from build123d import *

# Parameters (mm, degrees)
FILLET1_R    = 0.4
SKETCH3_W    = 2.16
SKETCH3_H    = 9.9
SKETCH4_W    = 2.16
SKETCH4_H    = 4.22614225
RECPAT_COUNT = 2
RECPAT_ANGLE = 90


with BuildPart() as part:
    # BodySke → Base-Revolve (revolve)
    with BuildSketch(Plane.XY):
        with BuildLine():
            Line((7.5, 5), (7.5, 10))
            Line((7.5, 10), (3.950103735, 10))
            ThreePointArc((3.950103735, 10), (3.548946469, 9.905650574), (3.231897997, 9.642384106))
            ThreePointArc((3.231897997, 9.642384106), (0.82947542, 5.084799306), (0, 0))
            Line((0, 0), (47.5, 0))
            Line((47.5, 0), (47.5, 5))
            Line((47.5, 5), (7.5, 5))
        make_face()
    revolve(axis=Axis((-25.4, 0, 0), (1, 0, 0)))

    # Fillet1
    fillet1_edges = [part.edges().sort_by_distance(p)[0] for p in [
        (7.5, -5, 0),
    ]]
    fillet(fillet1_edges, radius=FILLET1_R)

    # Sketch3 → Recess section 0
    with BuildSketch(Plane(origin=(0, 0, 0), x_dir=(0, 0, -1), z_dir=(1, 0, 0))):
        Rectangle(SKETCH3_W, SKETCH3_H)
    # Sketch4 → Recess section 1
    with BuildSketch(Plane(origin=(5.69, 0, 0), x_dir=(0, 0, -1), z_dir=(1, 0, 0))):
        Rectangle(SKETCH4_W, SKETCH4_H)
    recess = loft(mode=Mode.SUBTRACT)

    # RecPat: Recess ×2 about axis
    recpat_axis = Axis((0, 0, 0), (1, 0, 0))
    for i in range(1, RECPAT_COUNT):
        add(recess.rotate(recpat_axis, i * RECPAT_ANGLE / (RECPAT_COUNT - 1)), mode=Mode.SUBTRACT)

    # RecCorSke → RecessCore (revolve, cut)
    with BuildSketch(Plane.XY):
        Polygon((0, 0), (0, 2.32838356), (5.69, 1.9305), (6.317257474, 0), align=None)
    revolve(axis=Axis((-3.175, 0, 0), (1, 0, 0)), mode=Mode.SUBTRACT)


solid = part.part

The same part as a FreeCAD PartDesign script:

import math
import FreeCAD as App
import Part
import Sketcher

V = App.Vector
Q = App.Units.Quantity


def edges_at(feature, points):
    """Names of the edges that pass closest to the given points."""
    edges = feature.Shape.Edges
    near = lambda p: min(range(len(edges)), key=lambda i: edges[i].distToShape(Part.Vertex(*p))[0])
    return sorted({f"Edge{near(p) + 1}" for p in points})

doc = App.newDocument("Part")
body = doc.addObject("PartDesign::Body", "Body")

# Sketch on XY plane
sketch1 = body.newObject("Sketcher::SketchObject", "Sketch")
sketch1.AttachmentSupport = (doc.getObject("XY_Plane"), [""])
sketch1.MapMode = "FlatFace"
sketch1.addGeometry(Part.LineSegment(V(7.5, 5, 0), V(7.5, 10, 0)), False)
sketch1.addGeometry(Part.LineSegment(V(7.5, 10, 0), V(4, 10, 0)), False)
sketch1.addGeometry(Part.ArcOfCircle(Part.Circle(V(4, 9.1, 0), V(0, 0, 1), 0.9), math.radians(90), math.radians(143)), False)
sketch1.addGeometry(Part.ArcOfCircle(Part.Circle(V(16, 0, 0), V(0, 0, 1), 16), math.radians(143), math.radians(180)), False)
sketch1.addGeometry(Part.LineSegment(V(0, 0, 0), V(47.5, 0, 0)), False)
sketch1.addGeometry(Part.LineSegment(V(47.5, 0, 0), V(47.5, 5, 0)), False)
sketch1.addGeometry(Part.LineSegment(V(47.5, 5, 0), V(7.5, 5, 0)), False)
sketch1.addConstraint(Sketcher.Constraint("Coincident", 0, 2, 1, 1))
sketch1.addConstraint(Sketcher.Constraint("Tangent", 1, 2, 2, 1))
sketch1.addConstraint(Sketcher.Constraint("Tangent", 2, 2, 3, 1))
sketch1.addConstraint(Sketcher.Constraint("Coincident", 3, 2, 4, 1))
sketch1.addConstraint(Sketcher.Constraint("Coincident", 4, 2, 5, 1))
sketch1.addConstraint(Sketcher.Constraint("Coincident", 5, 2, 6, 1))
sketch1.addConstraint(Sketcher.Constraint("Coincident", 6, 2, 0, 1))
sketch1.addConstraint(Sketcher.Constraint("Vertical", 0))
sketch1.addConstraint(Sketcher.Constraint("Horizontal", 1))
sketch1.addConstraint(Sketcher.Constraint("Horizontal", 4))
sketch1.addConstraint(Sketcher.Constraint("Vertical", 5))
sketch1.addConstraint(Sketcher.Constraint("Horizontal", 6))
sketch1.addConstraint(Sketcher.Constraint("Coincident", 3, 2, -1, 1))
sketch1.addConstraint(Sketcher.Constraint("PointOnObject", 3, 3, -1))
sketch1.addConstraint(Sketcher.Constraint("Equal", 0, 5))
sketch1.addConstraint(Sketcher.Constraint("Radius", 3, 16.0))
sketch1.addConstraint(Sketcher.Constraint("Radius", 2, 0.9))
sketch1.addConstraint(Sketcher.Constraint("DistanceX", 6, 2, 6, 1, 40.0))
sketch1.addConstraint(Sketcher.Constraint("DistanceY", 0, 1, 0, 2, 5.0))
sketch1.addConstraint(Sketcher.Constraint("DistanceX", 4, 1, 4, 2, 47.5))
revolution = body.newObject("PartDesign::Revolution", "Revolution")
revolution.Profile = sketch1
revolution.ReferenceAxis = (sketch1, ["H_Axis"])
revolution.Angle = 360
doc.recompute()

fillet = body.newObject("PartDesign::Fillet", "Fillet")
fillet.Base = (revolution, edges_at(revolution, [(7.5, -5, 0)]))
fillet.Radius = 0.4

# Sketch on YZ plane
sketch2 = body.newObject("Sketcher::SketchObject", "Sketch001")
sketch2.AttachmentSupport = (doc.getObject("YZ_Plane"), [""])
sketch2.MapMode = "FlatFace"
sketch2.addGeometry(Part.LineSegment(V(5, 1.1, 0), V(-5, 1.1, 0)), False)
sketch2.addGeometry(Part.LineSegment(V(-5, 1.1, 0), V(-5, -1.1, 0)), False)
sketch2.addGeometry(Part.LineSegment(V(-5, -1.1, 0), V(5, -1.1, 0)), False)
sketch2.addGeometry(Part.LineSegment(V(5, -1.1, 0), V(5, 1.1, 0)), False)
sketch2.addConstraint(Sketcher.Constraint("Coincident", 0, 2, 1, 1))
sketch2.addConstraint(Sketcher.Constraint("Coincident", 1, 2, 2, 1))
sketch2.addConstraint(Sketcher.Constraint("Coincident", 2, 2, 3, 1))
sketch2.addConstraint(Sketcher.Constraint("Coincident", 3, 2, 0, 1))
sketch2.addConstraint(Sketcher.Constraint("Horizontal", 0))
sketch2.addConstraint(Sketcher.Constraint("Vertical", 1))
sketch2.addConstraint(Sketcher.Constraint("Horizontal", 2))
sketch2.addConstraint(Sketcher.Constraint("Vertical", 3))
sketch2.addConstraint(Sketcher.Constraint("Symmetric", 0, 2, 2, 2, -1, 1))
sketch2.addConstraint(Sketcher.Constraint("DistanceX", 0, 2, 0, 1, 9.9))
sketch2.addConstraint(Sketcher.Constraint("DistanceY", 1, 2, 1, 1, 2.16))

# Sketch on YZ plane
sketch3 = body.newObject("Sketcher::SketchObject", "Sketch002")
sketch3.AttachmentSupport = (doc.getObject("YZ_Plane"), [""])
sketch3.MapMode = "FlatFace"
sketch3.AttachmentOffset = App.Placement(V(0, 0, 5.69), App.Rotation())
sketch3.addGeometry(Part.LineSegment(V(2.1, 1.1, 0), V(-2.1, 1.1, 0)), False)
sketch3.addGeometry(Part.LineSegment(V(-2.1, 1.1, 0), V(-2.1, -1.1, 0)), False)
sketch3.addGeometry(Part.LineSegment(V(-2.1, -1.1, 0), V(2.1, -1.1, 0)), False)
sketch3.addGeometry(Part.LineSegment(V(2.1, -1.1, 0), V(2.1, 1.1, 0)), False)
sketch3.addConstraint(Sketcher.Constraint("Coincident", 0, 2, 1, 1))
sketch3.addConstraint(Sketcher.Constraint("Coincident", 1, 2, 2, 1))
sketch3.addConstraint(Sketcher.Constraint("Coincident", 2, 2, 3, 1))
sketch3.addConstraint(Sketcher.Constraint("Coincident", 3, 2, 0, 1))
sketch3.addConstraint(Sketcher.Constraint("Horizontal", 0))
sketch3.addConstraint(Sketcher.Constraint("Vertical", 1))
sketch3.addConstraint(Sketcher.Constraint("Horizontal", 2))
sketch3.addConstraint(Sketcher.Constraint("Vertical", 3))
sketch3.addConstraint(Sketcher.Constraint("Symmetric", 0, 2, 2, 2, -1, 1))
sketch3.addConstraint(Sketcher.Constraint("DistanceY", 1, 2, 1, 1, 2.16))
sketch3.addConstraint(Sketcher.Constraint("DistanceX", 0, 2, 0, 1, 4.226142))

subtractiveloft = body.newObject("PartDesign::SubtractiveLoft", "SubtractiveLoft")
subtractiveloft.Profile = sketch2
subtractiveloft.Sections = [sketch3]
doc.recompute()

polarpattern = body.newObject("PartDesign::PolarPattern", "PolarPattern")
polarpattern.Originals = [subtractiveloft]
polarpattern.Axis = (doc.getObject("X_Axis"), [""])
polarpattern.Angle = 90
polarpattern.Occurrences = 2
body.Tip = polarpattern

# Sketch on XY plane
sketch4 = body.newObject("Sketcher::SketchObject", "Sketch003")
sketch4.AttachmentSupport = (doc.getObject("XY_Plane"), [""])
sketch4.MapMode = "FlatFace"
sketch4.addGeometry(Part.LineSegment(V(0, 2.3, 0), V(0, 0, 0)), False)
sketch4.addGeometry(Part.LineSegment(V(0, 0, 0), V(6.3, 0, 0)), False)
sketch4.addGeometry(Part.LineSegment(V(6.3, 0, 0), V(5.7, 1.9, 0)), False)
sketch4.addGeometry(Part.LineSegment(V(5.7, 1.9, 0), V(0, 2.3, 0)), False)
sketch4.addConstraint(Sketcher.Constraint("Coincident", 0, 2, 1, 1))
sketch4.addConstraint(Sketcher.Constraint("Coincident", 1, 2, 2, 1))
sketch4.addConstraint(Sketcher.Constraint("Coincident", 2, 2, 3, 1))
sketch4.addConstraint(Sketcher.Constraint("Coincident", 3, 2, 0, 1))
sketch4.addConstraint(Sketcher.Constraint("Vertical", 0))
sketch4.addConstraint(Sketcher.Constraint("Horizontal", 1))
sketch4.addConstraint(Sketcher.Constraint("Coincident", 0, 2, -1, 1))
sketch4.addConstraint(Sketcher.Constraint("Angle", 2, Q("108 deg")))
sketch4.addConstraint(Sketcher.Constraint("Angle", 3, Q("176 deg")))
sketch4.addConstraint(Sketcher.Constraint("DistanceX", -1, 1, 2, 2, 5.69))
sketch4.addConstraint(Sketcher.Constraint("DistanceY", -1, 1, 2, 2, 1.9305))
groove = body.newObject("PartDesign::Groove", "Groove")
groove.Profile = sketch4
groove.ReferenceAxis = (sketch4, ["H_Axis"])
groove.Angle = 360

doc.recompute()
